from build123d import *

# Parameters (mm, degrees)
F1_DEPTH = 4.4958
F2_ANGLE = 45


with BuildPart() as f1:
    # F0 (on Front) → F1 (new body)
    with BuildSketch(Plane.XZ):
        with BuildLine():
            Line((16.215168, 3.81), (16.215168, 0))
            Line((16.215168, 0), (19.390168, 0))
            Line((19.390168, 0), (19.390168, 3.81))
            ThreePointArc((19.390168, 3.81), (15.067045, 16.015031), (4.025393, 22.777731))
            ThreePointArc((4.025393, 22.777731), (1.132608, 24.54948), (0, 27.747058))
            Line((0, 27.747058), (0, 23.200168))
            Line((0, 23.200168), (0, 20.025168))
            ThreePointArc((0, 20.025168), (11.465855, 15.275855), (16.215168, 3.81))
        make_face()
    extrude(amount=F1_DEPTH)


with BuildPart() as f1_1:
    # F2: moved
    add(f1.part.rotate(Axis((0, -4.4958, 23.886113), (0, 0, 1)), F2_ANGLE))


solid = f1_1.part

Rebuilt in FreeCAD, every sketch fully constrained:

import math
import FreeCAD as App
import Part
import Sketcher
from FreeCAD import Vector
Q = App.Units.Quantity

doc = App.newDocument("Part")
params = doc.addObject("Spreadsheet::Sheet", "Params")
for row, (alias, value) in enumerate([
    ("sketch1_radius", "0.1999999 in"),
    ("sketch1_height", "0.15 in"),
    ("sketch1_width", "0.125 in"),
    ("pad1_length", "0.177 in"),
], start=1):
    params.set(f"A{row}", alias)
    params.set(f"B{row}", "=" + value)
    params.setAlias(f"B{row}", alias)

body = doc.addObject("PartDesign::Body", "Body")

sketch1 = body.newObject("Sketcher::SketchObject", "Sketch")
sketch1.AttachmentSupport = (doc.getObject("XZ_Plane"), [""])
sketch1.MapMode = "FlatFace"
sketch1.addGeometry([
    Part.LineSegment(Vector(16.215168, 3.81, 0), Vector(16.215168, 0, 0)),
    Part.LineSegment(Vector(16.215168, 0, 0), Vector(19.390168, 0, 0)),
    Part.LineSegment(Vector(19.390168, 0, 0), Vector(19.390168, 3.81, 0)),
    Part.ArcOfCircle(Part.Circle(Vector(0.000001, 3.810001, 0), Vector(0, 0, 1), 19.390167), math.radians(-0.000003), math.radians(78.018278)),
    Part.ArcOfCircle(Part.Circle(Vector(5.079999, 27.747056, 0), Vector(0, 0, 1), 5.079999), math.radians(179.999979), math.radians(258.018282)),
    Part.LineSegment(Vector(0, 27.747058, 0), Vector(0, 20.025168, 0)),
    Part.ArcOfCircle(Part.Circle(Vector(-0.000001, 3.809999, 0), Vector(0, 0, 1), 16.215169), math.radians(0.000003), math.radians(89.999997)),
], False)
sketch1.addConstraint([
    Sketcher.Constraint("Coincident", 0, 2, 1, 1),
    Sketcher.Constraint("Coincident", 1, 2, 2, 1),
    Sketcher.Constraint("Tangent", 2, 2, 3, 1),
    Sketcher.Constraint("Tangent", 3, 2, 4, 2),
    Sketcher.Constraint("Tangent", 4, 1, 5, 1),
    Sketcher.Constraint("Coincident", 5, 2, 6, 2),
    Sketcher.Constraint("Tangent", 6, 1, 0, 1),
    Sketcher.Constraint("Vertical", 0),
    Sketcher.Constraint("Horizontal", 1),
    Sketcher.Constraint("Vertical", 2),
    Sketcher.Constraint("Vertical", 5),
    Sketcher.Constraint("Coincident", 6, 3, 3, 3),
    Sketcher.Constraint("PointOnObject", 3, 3, -2),
    Sketcher.Constraint("PointOnObject", 0, 2, -1),
    Sketcher.Constraint("PointOnObject", 4, 1, -2),
    Sketcher.Constraint("Radius", 4, Q("0.1999999 in")),
    Sketcher.Constraint("DistanceY", 0, 2, 0, 1, Q("0.15 in")),
    Sketcher.Constraint("DistanceX", 1, 1, 1, 2, Q("0.125 in")),
    Sketcher.Constraint("Radius", 6, Q("16.215169 mm")),
])
sketch1.setExpression("Constraints[15]", "Params.sketch1_radius")
sketch1.setExpression("Constraints[16]", "Params.sketch1_height")
sketch1.setExpression("Constraints[17]", "Params.sketch1_width")
pad1 = body.newObject("PartDesign::Pad", "Pad")
pad1.Profile = sketch1
pad1.setExpression("Length", "Params.pad1_length")
body2 = doc.addObject("PartDesign::Body", "Body001")
doc.recompute()

body.Placement = App.Placement(Vector(-3.179011, -1.316789, 0), App.Rotation(Vector(0, 0, 1), 45))
boolean = body2.newObject("PartDesign::Boolean", "Boolean")
boolean.Type = "Fuse"
boolean.addObjects([body])

doc.recompute()
